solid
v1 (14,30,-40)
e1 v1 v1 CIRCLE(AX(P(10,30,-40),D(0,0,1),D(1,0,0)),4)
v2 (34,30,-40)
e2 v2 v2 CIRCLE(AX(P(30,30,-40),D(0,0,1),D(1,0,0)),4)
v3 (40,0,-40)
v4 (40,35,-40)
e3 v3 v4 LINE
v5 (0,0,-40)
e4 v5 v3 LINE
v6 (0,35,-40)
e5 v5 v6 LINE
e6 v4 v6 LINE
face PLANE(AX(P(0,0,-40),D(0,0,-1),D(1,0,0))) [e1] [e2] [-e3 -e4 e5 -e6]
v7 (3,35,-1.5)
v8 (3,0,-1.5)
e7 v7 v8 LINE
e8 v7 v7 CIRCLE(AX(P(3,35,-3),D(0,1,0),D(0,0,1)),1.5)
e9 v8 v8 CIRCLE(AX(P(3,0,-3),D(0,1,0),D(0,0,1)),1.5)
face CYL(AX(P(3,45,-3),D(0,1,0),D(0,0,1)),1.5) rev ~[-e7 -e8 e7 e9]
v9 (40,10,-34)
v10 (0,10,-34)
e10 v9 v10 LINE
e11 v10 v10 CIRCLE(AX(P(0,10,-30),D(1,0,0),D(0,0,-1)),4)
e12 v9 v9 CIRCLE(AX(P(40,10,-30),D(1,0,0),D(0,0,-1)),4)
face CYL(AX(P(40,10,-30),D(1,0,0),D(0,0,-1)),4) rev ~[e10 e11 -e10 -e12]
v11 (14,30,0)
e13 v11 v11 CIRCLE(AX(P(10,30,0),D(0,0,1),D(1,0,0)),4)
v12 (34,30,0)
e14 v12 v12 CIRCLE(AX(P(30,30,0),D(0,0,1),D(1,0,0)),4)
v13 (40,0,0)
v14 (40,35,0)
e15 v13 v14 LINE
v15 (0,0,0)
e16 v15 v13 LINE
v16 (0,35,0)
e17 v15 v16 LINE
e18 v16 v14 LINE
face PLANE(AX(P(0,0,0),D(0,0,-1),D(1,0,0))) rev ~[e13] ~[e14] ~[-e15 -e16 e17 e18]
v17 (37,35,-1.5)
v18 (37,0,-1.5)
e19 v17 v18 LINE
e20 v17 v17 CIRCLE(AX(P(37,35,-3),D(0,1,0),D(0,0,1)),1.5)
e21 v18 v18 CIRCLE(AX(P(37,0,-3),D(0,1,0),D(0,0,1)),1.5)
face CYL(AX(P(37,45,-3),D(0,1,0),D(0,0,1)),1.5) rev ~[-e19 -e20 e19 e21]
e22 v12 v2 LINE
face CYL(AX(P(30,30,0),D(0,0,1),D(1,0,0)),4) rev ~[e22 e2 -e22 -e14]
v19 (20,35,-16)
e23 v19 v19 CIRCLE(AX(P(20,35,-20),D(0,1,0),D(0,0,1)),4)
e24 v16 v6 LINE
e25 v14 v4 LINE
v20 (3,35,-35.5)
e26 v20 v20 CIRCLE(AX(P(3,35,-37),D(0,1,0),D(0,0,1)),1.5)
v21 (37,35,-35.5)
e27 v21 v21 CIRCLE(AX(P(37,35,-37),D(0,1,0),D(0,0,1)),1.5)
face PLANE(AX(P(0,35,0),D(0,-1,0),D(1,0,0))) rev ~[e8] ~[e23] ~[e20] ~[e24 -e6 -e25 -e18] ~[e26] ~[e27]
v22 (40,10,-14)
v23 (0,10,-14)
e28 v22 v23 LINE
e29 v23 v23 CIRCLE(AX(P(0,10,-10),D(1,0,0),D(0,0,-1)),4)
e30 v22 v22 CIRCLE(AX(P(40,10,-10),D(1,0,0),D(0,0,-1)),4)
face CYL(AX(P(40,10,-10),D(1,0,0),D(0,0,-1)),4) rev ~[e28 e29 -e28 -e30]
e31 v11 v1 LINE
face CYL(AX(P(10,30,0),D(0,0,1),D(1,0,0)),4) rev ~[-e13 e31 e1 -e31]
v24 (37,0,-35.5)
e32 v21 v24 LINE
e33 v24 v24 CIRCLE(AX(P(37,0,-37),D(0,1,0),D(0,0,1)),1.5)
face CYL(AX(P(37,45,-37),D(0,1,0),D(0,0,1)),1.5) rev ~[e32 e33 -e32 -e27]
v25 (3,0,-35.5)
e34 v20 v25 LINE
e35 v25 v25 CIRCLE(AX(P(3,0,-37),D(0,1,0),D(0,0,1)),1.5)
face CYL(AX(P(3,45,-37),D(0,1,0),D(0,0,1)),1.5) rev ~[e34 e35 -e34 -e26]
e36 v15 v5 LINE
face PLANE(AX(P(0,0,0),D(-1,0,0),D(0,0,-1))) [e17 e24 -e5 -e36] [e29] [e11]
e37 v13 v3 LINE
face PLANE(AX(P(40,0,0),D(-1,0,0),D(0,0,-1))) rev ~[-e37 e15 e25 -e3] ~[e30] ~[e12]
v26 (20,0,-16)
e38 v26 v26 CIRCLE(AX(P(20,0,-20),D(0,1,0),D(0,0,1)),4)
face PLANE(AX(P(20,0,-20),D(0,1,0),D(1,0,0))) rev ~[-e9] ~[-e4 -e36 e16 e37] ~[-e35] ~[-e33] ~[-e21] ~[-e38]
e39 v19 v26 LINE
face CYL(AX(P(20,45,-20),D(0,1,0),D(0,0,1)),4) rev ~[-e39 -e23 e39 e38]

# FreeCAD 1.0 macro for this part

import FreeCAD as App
import Part
import Sketcher
from FreeCAD import Vector


def add_polygon(sketch, points):
    """Adds a closed chain of lines whose ends are joined by coincident constraints."""
    first, n = sketch.GeometryCount, len(points)
    for a, b in zip(points, points[1:] + points[:1]):
        sketch.addGeometry(Part.LineSegment(App.Vector(*a, 0), App.Vector(*b, 0)), False)
    for i in range(n):
        sketch.addConstraint(Sketcher.Constraint("Coincident", first + i, 2, first + (i + 1) % n, 1))

doc = App.newDocument("Part")
params = doc.addObject("Spreadsheet::Sheet", "Params")
for row, (alias, value) in enumerate([
    ("sketch1_width", "40 mm"),
    ("pad1_length", "45 mm"),
    ("sketch2_diameter", "8 mm"),
    ("pocket1_length", "45 mm"),
    ("sketch3_diameter", "8 mm"),
    ("pocket2_length", "45 mm"),
    ("sketch4_diameter", "8 mm"),
    ("sketch4_diameter2", "3 mm"),
    ("pocket3_length", "45 mm"),
    ("sketch5_width", "40 mm"),
    ("sketch5_height", "10 mm"),
    ("pocket4_length", "45 mm"),
], start=1):
    params.set(f"A{row}", alias)
    params.set(f"B{row}", "=" + value)
    params.setAlias(f"B{row}", alias)

body = doc.addObject("PartDesign::Body", "Body")

sketch1 = body.newObject("Sketcher::SketchObject", "Sketch")
sketch1.AttachmentSupport = (doc.getObject("XZ_Plane"), [""])
sketch1.MapMode = "FlatFace"
add_polygon(sketch1, [(0, -40), (0, 0), (40, 0), (40, -40)])
sketch1.addConstraint([
    Sketcher.Constraint("Vertical", 0),
    Sketcher.Constraint("Horizontal", 1),
    Sketcher.Constraint("Vertical", 2),
    Sketcher.Constraint("Horizontal", 3),
    Sketcher.Constraint("Coincident", 0, 2, -1, 1),
    Sketcher.Constraint("Equal", 3, 0),
    Sketcher.Constraint("DistanceX", 1, 1, 1, 2, 40.0),
])
sketch1.setExpression("Constraints[10]", "Params.sketch1_width")
pad1 = body.newObject("PartDesign::Pad", "Pad")
pad1.Profile = sketch1
pad1.setExpression("Length", "Params.pad1_length")
pad1.Reversed = True

sketch2 = body.newObject("Sketcher::SketchObject", "Sketch001")
sketch2.AttachmentSupport = (doc.getObject("XY_Plane"), [""])
sketch2.MapMode = "FlatFace"
sketch2.addGeometry([
    Part.Circle(Vector(10, 30, 0), Vector(0, 0, 1), 4),
    Part.Circle(Vector(30, 30, 0), Vector(0, 0, 1), 4),
], False)
sketch2.addConstraint([
    Sketcher.Constraint("Equal", 0, 1),
    Sketcher.Constraint("Horizontal", 0, 3, 1, 3),
    Sketcher.Constraint("Diameter", 0, 8.0),
    Sketcher.Constraint("DistanceX", -1, 1, 0, 3, 10.0),
    Sketcher.Constraint("DistanceY", -1, 1, 0, 3, 30.0),
    Sketcher.Constraint("DistanceX", -1, 1, 1, 3, 30.0),
])
sketch2.setExpression("Constraints[2]", "Params.sketch2_diameter")
pocket1 = body.newObject("PartDesign::Pocket", "Pocket")
pocket1.Profile = sketch2
pocket1.setExpression("Length", "Params.pocket1_length")

sketch3 = body.newObject("Sketcher::SketchObject", "Sketch002")
sketch3.AttachmentSupport = (doc.getObject("YZ_Plane"), [""])
sketch3.MapMode = "FlatFace"
sketch3.AttachmentOffset = App.Placement(Vector(0, 0, 40), App.Rotation())
sketch3.addGeometry([
    Part.Circle(Vector(10, -10, 0), Vector(0, 0, 1), 4),
    Part.Circle(Vector(10, -30, 0), Vector(0, 0, 1), 4),
], False)
sketch3.addConstraint([
    Sketcher.Constraint("Equal", 0, 1),
    Sketcher.Constraint("Vertical", 0, 3, 1, 3),
    Sketcher.Constraint("Diameter", 0, 8.0),
    Sketcher.Constraint("DistanceX", -1, 1, 0, 3, 10.0),
    Sketcher.Constraint("DistanceY", 0, 3, -1, 1, 10.0),
    Sketcher.Constraint("DistanceY", 1, 3, -1, 1, 30.0),
])
sketch3.setExpression("Constraints[2]", "Params.sketch3_diameter")
pocket2 = body.newObject("PartDesign::Pocket", "Pocket001")
pocket2.Profile = sketch3
pocket2.setExpression("Length", "Params.pocket2_length")

sketch4 = body.newObject("Sketcher::SketchObject", "Sketch003")
sketch4.AttachmentSupport = (doc.getObject("XZ_Plane"), [""])
sketch4.MapMode = "FlatFace"
sketch4.AttachmentOffset = App.Placement(Vector(0, 0, -45), App.Rotation())
sketch4.addGeometry([
    Part.Circle(Vector(20, -20, 0), Vector(0, 0, 1), 4),
    Part.Circle(Vector(3, -3, 0), Vector(0, 0, 1), 1.5),
    Part.Circle(Vector(3, -37, 0), Vector(0, 0, 1), 1.5),
    Part.Circle(Vector(37, -37, 0), Vector(0, 0, 1), 1.5),
    Part.Circle(Vector(37, -3, 0), Vector(0, 0, 1), 1.5),
], False)
sketch4.addConstraint([
    Sketcher.Constraint("Equal", 1, 2),
    Sketcher.Constraint("Equal", 2, 3),
    Sketcher.Constraint("Equal", 3, 4),
    Sketcher.Constraint("Horizontal", 2, 3, 3, 3),
    Sketcher.Constraint("Horizontal", 1, 3, 4, 3),
    Sketcher.Constraint("Vertical", 1, 3, 2, 3),
    Sketcher.Constraint("Vertical", 3, 3, 4, 3),
    Sketcher.Constraint("Diameter", 0, 8.0),
    Sketcher.Constraint("Diameter", 1, 3.0),
    Sketcher.Constraint("DistanceX", -1, 1, 0, 3, 20.0),
    Sketcher.Constraint("DistanceY", 0, 3, -1, 1, 20.0),
    Sketcher.Constraint("DistanceX", -1, 1, 1, 3, 3.0),
    Sketcher.Constraint("DistanceY", 1, 3, -1, 1, 3.0),
    Sketcher.Constraint("DistanceY", 2, 3, -1, 1, 37.0),
    Sketcher.Constraint("DistanceX", -1, 1, 3, 3, 37.0),
])
sketch4.setExpression("Constraints[7]", "Params.sketch4_diameter")
sketch4.setExpression("Constraints[8]", "Params.sketch4_diameter2")
pocket3 = body.newObject("PartDesign::Pocket", "Pocket002")
pocket3.Profile = sketch4
pocket3.setExpression("Length", "Params.pocket3_length")
pocket3.Reversed = True

sketch5 = body.newObject("Sketcher::SketchObject", "Sketch004")
sketch5.AttachmentSupport = (doc.getObject("XY_Plane"), [""])
sketch5.MapMode = "FlatFace"
add_polygon(sketch5, [(0, 45), (0, 35), (40, 35), (40, 45)])
sketch5.addConstraint([
    Sketcher.Constraint("Vertical", 0),
    Sketcher.Constraint("Horizontal", 1),
    Sketcher.Constraint("Vertical", 2),
    Sketcher.Constraint("Horizontal", 3),
    Sketcher.Constraint("PointOnObject", 0, 2, -2),
    Sketcher.Constraint("DistanceX", 1, 1, 1, 2, 40.0),
    Sketcher.Constraint("DistanceY", 0, 2, 0, 1, 10.0),
    Sketcher.Constraint("DistanceY", -1, 1, 0, 2, 35.0),
])
sketch5.setExpression("Constraints[9]", "Params.sketch5_width")
sketch5.setExpression("Constraints[10]", "Params.sketch5_height")
pocket4 = body.newObject("PartDesign::Pocket", "Pocket003")
pocket4.Profile = sketch5
pocket4.setExpression("Length", "Params.pocket4_length")

doc.recompute()
